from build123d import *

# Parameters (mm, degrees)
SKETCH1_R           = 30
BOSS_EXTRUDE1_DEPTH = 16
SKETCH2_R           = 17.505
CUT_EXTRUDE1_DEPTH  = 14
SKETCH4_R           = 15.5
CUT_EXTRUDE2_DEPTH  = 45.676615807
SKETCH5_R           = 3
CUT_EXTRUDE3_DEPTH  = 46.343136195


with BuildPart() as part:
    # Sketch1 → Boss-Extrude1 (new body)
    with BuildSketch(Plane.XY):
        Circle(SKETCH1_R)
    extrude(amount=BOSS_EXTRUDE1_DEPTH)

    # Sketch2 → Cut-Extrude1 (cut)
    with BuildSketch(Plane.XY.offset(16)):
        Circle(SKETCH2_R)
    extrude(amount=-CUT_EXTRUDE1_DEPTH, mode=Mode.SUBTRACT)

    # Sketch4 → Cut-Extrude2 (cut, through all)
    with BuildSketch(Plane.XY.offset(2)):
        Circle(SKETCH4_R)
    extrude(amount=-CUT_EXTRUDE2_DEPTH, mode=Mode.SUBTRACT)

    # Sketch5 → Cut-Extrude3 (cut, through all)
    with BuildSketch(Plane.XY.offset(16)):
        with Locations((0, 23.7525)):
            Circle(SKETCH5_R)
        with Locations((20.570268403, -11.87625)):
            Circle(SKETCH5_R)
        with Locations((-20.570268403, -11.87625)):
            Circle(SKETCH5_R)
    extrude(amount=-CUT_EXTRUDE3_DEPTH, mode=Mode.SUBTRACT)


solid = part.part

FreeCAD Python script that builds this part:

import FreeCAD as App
import Part
import Sketcher
Q = App.Units.Quantity

doc = App.newDocument("Part")
body = doc.addObject("PartDesign::Body", "Body")

sketch1 = doc.addObject("Sketcher::SketchObject", "Sketch")
body.addObject(sketch1)
sketch1.AttachmentSupport = (doc.XY_Plane, [""])
sketch1.MapMode = "FlatFace"
sketch1.addGeometry(Part.Circle(App.Vector(0, 0, 0), App.Vector(0, 0, 1), 30), False)
sketch1.addConstraint([
    Sketcher.Constraint("Coincident", 0, 3, -1, 1),
    Sketcher.Constraint("Diameter", 0, Q("60 mm")),
])
pad1 = doc.addObject("PartDesign::Pad", "Pad")
body.addObject(pad1)
pad1.Profile = sketch1
pad1.Length = 16

sketch2 = doc.addObject("Sketcher::SketchObject", "Sketch001")
body.addObject(sketch2)
sketch2.AttachmentSupport = (doc.XY_Plane, [""])
sketch2.MapMode = "FlatFace"
sketch2.AttachmentOffset = App.Placement(App.Vector(0, 0, 16), App.Rotation())
sketch2.addGeometry(Part.Circle(App.Vector(0, 0, 0), App.Vector(0, 0, 1), 17.505), False)
sketch2.addConstraint([
    Sketcher.Constraint("Coincident", 0, 3, -1, 1),
    Sketcher.Constraint("Diameter", 0, Q("35.01 mm")),
])
pocket1 = doc.addObject("PartDesign::Pocket", "Pocket")
body.addObject(pocket1)
pocket1.Profile = sketch2
pocket1.Length = 14

sketch3 = doc.addObject("Sketcher::SketchObject", "Sketch002")
body.addObject(sketch3)
sketch3.AttachmentSupport = (doc.XY_Plane, [""])
sketch3.MapMode = "FlatFace"
sketch3.AttachmentOffset = App.Placement(App.Vector(0, 0, 2), App.Rotation())
sketch3.addGeometry(Part.Circle(App.Vector(0, 0, 0), App.Vector(0, 0, 1), 15.5), False)
sketch3.addConstraint([
    Sketcher.Constraint("Coincident", 0, 3, -1, 1),
    Sketcher.Constraint("Diameter", 0, Q("31 mm")),
])
pocket2 = doc.addObject("PartDesign::Pocket", "Pocket001")
body.addObject(pocket2)
pocket2.Profile = sketch3
pocket2.Type = "ThroughAll"

sketch4 = doc.addObject("Sketcher::SketchObject", "Sketch003")
body.addObject(sketch4)
sketch4.AttachmentSupport = (doc.XY_Plane, [""])
sketch4.MapMode = "FlatFace"
sketch4.AttachmentOffset = App.Placement(App.Vector(0, 0, 16), App.Rotation())
sketch4.addGeometry([
    Part.Circle(App.Vector(0, 23.7525, 0), App.Vector(0, 0, 1), 3),
    Part.Circle(App.Vector(20.570268, -11.87625, 0), App.Vector(0, 0, 1), 3),
    Part.Circle(App.Vector(-20.570268, -11.87625, 0), App.Vector(0, 0, 1), 3),
], False)
sketch4.addConstraint([
    Sketcher.Constraint("Equal", 0, 1),
    Sketcher.Constraint("Equal", 1, 2),
    Sketcher.Constraint("Symmetric", 1, 3, 2, 3, -2),
    Sketcher.Constraint("PointOnObject", 0, 3, -2),
    Sketcher.Constraint("Diameter", 0, Q("6 mm")),
    Sketcher.Constraint("DistanceY", -1, 1, 0, 3, Q("23.7525 mm")),
    Sketcher.Constraint("DistanceX", -1, 1, 1, 3, Q("20.570268 mm")),
    Sketcher.Constraint("DistanceY", 1, 3, -1, 1, Q("11.87625 mm")),
])
pocket3 = doc.addObject("PartDesign::Pocket", "Pocket002")
body.addObject(pocket3)
pocket3.Profile = sketch4
pocket3.Type = "ThroughAll"

doc.recompute()
